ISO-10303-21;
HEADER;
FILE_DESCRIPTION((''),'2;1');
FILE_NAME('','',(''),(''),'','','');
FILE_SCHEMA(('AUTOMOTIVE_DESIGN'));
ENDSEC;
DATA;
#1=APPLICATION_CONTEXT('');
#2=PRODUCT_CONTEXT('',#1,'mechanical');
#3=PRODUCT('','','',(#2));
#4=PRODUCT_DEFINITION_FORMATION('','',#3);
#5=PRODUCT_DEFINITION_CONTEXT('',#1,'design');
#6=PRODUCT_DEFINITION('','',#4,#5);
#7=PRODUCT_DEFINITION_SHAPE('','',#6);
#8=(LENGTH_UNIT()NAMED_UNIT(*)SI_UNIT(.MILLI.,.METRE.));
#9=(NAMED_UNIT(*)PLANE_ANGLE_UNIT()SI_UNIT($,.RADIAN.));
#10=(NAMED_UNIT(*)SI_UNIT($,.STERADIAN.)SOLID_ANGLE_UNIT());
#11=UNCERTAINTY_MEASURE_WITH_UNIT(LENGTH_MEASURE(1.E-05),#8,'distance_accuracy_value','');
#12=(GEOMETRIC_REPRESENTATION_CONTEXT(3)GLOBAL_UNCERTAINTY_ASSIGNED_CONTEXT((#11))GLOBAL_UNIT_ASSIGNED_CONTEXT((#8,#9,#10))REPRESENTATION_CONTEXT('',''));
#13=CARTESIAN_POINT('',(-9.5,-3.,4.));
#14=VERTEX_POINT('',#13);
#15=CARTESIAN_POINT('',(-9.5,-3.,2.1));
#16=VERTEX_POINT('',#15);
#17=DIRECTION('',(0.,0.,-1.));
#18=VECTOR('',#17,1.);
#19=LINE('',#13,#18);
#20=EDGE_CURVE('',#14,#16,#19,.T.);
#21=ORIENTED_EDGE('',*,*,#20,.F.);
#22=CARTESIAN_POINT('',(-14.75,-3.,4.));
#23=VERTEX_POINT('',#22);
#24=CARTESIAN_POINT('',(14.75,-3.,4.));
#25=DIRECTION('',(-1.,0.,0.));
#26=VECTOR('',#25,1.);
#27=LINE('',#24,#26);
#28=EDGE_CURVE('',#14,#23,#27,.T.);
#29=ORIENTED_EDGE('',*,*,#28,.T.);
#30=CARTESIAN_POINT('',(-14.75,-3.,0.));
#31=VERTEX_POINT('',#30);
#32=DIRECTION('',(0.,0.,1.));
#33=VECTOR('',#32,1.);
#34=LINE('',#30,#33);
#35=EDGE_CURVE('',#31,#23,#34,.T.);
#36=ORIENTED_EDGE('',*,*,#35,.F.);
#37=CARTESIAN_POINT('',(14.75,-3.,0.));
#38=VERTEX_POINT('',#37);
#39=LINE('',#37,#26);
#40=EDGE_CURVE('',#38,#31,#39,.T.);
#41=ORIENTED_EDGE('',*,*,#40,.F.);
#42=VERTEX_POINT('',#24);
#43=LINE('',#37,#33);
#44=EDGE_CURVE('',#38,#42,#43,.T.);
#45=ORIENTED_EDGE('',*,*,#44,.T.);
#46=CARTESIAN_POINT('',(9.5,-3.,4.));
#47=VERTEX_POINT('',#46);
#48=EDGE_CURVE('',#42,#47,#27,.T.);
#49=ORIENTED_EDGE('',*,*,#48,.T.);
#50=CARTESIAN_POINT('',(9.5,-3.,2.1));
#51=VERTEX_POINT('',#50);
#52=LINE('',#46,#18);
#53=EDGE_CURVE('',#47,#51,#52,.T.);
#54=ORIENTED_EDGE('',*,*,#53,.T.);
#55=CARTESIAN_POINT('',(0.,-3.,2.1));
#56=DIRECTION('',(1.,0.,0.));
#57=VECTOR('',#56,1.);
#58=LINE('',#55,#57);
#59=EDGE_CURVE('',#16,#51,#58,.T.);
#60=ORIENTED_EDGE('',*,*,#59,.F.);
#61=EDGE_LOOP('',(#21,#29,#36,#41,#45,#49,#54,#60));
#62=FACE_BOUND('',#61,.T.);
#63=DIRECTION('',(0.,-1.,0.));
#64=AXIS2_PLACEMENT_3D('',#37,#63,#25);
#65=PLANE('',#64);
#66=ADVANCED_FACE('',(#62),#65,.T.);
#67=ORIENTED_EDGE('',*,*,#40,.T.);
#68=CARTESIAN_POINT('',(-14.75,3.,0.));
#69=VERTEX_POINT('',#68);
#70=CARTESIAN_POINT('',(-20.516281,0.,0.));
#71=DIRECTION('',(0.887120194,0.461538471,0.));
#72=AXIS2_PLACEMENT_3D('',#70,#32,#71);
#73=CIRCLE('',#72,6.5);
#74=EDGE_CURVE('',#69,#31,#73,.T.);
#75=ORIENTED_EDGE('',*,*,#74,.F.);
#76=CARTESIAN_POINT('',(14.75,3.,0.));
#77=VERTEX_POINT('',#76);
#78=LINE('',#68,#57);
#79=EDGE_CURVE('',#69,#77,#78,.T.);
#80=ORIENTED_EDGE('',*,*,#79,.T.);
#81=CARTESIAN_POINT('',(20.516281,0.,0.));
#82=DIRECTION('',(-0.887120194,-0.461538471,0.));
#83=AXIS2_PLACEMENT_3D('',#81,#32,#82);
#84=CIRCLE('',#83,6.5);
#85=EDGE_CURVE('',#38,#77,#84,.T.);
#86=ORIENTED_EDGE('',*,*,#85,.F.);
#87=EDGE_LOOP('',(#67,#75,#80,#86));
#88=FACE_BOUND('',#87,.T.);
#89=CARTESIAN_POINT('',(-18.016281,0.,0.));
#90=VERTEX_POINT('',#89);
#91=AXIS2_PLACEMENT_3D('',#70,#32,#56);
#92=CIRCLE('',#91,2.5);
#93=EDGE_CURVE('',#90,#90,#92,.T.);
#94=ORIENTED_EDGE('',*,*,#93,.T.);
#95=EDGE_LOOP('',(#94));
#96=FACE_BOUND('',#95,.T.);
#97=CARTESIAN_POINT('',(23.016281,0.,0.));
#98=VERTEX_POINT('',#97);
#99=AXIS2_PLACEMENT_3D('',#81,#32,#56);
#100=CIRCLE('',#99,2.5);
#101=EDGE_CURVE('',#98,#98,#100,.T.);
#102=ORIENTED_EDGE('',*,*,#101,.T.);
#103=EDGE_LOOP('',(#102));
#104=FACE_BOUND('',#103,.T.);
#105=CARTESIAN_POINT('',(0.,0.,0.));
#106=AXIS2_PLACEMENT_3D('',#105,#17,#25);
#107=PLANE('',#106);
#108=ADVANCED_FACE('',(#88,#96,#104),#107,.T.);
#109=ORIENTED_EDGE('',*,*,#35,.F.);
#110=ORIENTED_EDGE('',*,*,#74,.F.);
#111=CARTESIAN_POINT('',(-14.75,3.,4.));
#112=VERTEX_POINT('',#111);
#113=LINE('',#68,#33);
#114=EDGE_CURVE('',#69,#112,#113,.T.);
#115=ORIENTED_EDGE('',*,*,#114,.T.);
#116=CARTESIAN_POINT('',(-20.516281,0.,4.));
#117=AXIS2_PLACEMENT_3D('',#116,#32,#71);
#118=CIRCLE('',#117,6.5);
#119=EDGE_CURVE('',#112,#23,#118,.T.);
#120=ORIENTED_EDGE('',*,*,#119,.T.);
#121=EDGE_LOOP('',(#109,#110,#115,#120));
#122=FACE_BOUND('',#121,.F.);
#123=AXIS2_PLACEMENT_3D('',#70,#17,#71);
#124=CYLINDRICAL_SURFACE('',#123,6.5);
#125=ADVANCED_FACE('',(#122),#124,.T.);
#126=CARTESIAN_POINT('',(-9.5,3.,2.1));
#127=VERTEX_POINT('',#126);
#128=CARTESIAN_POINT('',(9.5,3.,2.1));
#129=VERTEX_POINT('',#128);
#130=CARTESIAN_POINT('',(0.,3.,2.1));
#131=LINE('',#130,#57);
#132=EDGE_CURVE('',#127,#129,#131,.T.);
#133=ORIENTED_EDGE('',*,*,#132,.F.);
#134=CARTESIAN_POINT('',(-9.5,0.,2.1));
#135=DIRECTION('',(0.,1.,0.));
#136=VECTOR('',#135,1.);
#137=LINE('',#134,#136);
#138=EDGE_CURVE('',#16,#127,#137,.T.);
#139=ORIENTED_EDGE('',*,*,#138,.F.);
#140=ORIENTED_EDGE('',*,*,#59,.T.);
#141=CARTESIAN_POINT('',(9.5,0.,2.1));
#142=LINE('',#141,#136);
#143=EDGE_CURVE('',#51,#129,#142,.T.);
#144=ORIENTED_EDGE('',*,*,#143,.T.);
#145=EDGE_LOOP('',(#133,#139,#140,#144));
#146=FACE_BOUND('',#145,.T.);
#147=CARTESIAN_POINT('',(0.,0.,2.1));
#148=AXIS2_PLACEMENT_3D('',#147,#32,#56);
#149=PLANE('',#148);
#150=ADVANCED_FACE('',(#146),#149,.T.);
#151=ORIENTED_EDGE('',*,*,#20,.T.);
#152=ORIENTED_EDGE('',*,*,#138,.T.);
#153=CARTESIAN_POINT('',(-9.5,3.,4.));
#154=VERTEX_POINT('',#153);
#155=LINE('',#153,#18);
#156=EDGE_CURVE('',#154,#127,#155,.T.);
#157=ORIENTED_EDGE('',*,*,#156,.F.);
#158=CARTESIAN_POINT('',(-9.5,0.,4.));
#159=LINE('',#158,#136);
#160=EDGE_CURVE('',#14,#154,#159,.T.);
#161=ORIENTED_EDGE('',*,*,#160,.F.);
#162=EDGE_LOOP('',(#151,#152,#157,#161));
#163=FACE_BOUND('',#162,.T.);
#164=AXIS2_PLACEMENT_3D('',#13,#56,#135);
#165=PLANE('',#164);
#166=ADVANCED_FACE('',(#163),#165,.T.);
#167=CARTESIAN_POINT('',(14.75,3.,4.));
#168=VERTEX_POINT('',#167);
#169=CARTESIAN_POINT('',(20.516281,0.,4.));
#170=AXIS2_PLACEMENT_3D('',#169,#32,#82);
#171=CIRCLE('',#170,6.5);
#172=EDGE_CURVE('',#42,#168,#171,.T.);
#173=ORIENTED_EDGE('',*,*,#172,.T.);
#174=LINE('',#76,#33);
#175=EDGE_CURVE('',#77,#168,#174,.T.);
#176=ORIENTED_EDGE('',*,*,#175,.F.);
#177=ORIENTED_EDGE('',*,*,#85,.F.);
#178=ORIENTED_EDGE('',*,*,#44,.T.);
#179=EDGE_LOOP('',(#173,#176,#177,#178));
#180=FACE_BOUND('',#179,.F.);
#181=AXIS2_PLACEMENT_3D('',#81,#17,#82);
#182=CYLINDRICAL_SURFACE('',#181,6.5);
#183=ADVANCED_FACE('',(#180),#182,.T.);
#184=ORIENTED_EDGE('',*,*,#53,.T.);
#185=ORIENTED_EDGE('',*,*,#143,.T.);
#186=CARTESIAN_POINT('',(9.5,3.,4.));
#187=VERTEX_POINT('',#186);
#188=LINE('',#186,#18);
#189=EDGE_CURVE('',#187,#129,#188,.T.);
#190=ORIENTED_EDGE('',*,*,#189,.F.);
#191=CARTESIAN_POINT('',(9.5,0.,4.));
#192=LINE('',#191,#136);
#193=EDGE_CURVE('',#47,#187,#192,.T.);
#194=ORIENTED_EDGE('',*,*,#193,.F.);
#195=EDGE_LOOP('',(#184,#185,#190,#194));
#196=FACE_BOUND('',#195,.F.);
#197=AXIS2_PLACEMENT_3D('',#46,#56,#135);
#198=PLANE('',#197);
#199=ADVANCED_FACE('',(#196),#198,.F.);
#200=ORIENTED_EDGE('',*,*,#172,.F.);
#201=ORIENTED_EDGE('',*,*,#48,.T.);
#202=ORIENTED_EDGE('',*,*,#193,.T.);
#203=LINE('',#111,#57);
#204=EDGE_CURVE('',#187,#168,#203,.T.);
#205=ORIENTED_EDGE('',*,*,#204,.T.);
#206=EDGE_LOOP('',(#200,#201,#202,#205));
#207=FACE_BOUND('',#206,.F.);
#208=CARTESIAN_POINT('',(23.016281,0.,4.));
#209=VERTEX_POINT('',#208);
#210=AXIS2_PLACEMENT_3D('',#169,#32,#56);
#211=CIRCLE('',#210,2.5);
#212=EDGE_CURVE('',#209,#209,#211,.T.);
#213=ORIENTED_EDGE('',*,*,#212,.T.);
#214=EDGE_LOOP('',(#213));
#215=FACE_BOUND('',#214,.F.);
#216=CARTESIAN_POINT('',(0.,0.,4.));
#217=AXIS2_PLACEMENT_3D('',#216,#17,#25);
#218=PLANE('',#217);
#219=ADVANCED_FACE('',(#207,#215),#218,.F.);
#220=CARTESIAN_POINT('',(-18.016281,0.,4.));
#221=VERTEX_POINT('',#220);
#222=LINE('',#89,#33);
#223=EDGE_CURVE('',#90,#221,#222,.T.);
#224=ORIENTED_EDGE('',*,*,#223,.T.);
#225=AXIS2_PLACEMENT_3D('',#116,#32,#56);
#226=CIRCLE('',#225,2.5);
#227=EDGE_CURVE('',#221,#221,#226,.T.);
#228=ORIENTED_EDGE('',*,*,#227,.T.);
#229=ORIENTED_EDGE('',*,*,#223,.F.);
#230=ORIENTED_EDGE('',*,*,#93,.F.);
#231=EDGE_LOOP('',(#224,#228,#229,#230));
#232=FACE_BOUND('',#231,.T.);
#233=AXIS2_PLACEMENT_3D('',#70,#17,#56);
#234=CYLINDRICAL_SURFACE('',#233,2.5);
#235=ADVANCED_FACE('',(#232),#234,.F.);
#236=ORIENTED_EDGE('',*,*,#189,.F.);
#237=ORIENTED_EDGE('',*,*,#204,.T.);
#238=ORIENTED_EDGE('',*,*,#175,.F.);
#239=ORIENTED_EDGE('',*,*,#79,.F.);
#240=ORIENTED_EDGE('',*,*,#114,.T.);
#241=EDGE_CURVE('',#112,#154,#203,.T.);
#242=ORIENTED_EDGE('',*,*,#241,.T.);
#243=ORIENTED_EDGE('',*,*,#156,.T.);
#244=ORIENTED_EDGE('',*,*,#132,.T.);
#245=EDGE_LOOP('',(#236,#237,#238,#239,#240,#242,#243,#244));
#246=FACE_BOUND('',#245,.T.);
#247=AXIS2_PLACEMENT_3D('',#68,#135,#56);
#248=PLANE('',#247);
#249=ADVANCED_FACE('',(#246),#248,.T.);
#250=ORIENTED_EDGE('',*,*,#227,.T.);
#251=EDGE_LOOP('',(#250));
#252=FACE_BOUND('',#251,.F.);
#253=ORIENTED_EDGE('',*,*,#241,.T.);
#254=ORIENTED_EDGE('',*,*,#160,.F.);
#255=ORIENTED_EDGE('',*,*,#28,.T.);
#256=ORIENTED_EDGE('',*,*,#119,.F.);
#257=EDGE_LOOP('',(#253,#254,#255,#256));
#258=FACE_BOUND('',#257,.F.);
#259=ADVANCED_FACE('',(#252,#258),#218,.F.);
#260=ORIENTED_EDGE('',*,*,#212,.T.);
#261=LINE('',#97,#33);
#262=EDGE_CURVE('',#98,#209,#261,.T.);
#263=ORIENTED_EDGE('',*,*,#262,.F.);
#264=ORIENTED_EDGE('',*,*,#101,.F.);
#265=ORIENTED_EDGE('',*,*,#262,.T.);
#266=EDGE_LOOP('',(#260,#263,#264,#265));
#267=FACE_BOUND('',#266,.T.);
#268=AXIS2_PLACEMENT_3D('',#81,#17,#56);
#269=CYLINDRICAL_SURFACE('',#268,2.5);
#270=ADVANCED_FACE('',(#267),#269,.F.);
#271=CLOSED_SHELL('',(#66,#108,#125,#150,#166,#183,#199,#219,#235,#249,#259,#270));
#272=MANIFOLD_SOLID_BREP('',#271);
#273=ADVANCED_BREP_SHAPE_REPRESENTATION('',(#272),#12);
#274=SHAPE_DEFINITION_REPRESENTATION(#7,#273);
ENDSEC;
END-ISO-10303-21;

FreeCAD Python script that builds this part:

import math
import FreeCAD as App
import Part
import Sketcher

V = App.Vector


def add_polygon(sketch, points):
    """Adds a closed chain of lines whose ends are joined by coincident constraints."""
    first, n = sketch.GeometryCount, len(points)
    for a, b in zip(points, points[1:] + points[:1]):
        sketch.addGeometry(Part.LineSegment(App.Vector(*a, 0), App.Vector(*b, 0)), False)
    for i in range(n):
        sketch.addConstraint(Sketcher.Constraint("Coincident", first + i, 2, first + (i + 1) % n, 1))

doc = App.newDocument("Part")
body = doc.addObject("PartDesign::Body", "Body")

sketch1 = body.newObject("Sketcher::SketchObject", "Sketch")
sketch1.AttachmentSupport = (doc.getObject("XY_Plane"), [""])
sketch1.MapMode = "FlatFace"
sketch1.addGeometry([
    Part.LineSegment(V(14.8, 3, 0), V(-14.8, 3, 0)),
    Part.ArcOfCircle(Part.Circle(V(-20.5, 0, 0), V(0, 0, 1), 6.5), math.radians(27), math.radians(333)),
    Part.LineSegment(V(-14.8, -3, 0), V(14.8, -3, 0)),
    Part.ArcOfCircle(Part.Circle(V(20.5, 0, 0), V(0, 0, 1), 6.5), math.radians(-153), math.radians(153)),
    Part.Circle(V(20.5, 0, 0), V(0, 0, 1), 2.5),
    Part.Circle(V(-20.5, 0, 0), V(0, 0, 1), 2.5),
], False)
sketch1.addConstraint([
    Sketcher.Constraint("Coincident", 0, 2, 1, 1),
    Sketcher.Constraint("Coincident", 1, 2, 2, 1),
    Sketcher.Constraint("Coincident", 2, 2, 3, 1),
    Sketcher.Constraint("Coincident", 3, 2, 0, 1),
    Sketcher.Constraint("Horizontal", 0),
    Sketcher.Constraint("Horizontal", 2),
    Sketcher.Constraint("Coincident", 4, 3, 3, 3),
    Sketcher.Constraint("Coincident", 5, 3, 1, 3),
    Sketcher.Constraint("Equal", 1, 3),
    Sketcher.Constraint("Equal", 4, 5),
    Sketcher.Constraint("Symmetric", 1, 3, 3, 3, -1, 1),
    Sketcher.Constraint("Symmetric", 0, 2, 1, 2, -1),
    Sketcher.Constraint("Diameter", 4, 5.0),
    Sketcher.Constraint("Radius", 1, 6.5),
    Sketcher.Constraint("DistanceX", 0, 2, 0, 1, 29.5),
    Sketcher.Constraint("DistanceY", -1, 1, 0, 2, 3.0),
])
pad1 = body.newObject("PartDesign::Pad", "Pad")
pad1.Profile = sketch1
pad1.Length = 4

sketch2 = body.newObject("Sketcher::SketchObject", "Sketch001")
sketch2.AttachmentSupport = (doc.getObject("XY_Plane"), [""])
sketch2.MapMode = "FlatFace"
sketch2.AttachmentOffset = App.Placement(V(0, 0, 4), App.Rotation())
add_polygon(sketch2, [(-10, 3), (-10, -3), (10, -3), (10, 3)])
sketch2.addConstraint([
    Sketcher.Constraint("Vertical", 0),
    Sketcher.Constraint("Horizontal", 1),
    Sketcher.Constraint("Vertical", 2),
    Sketcher.Constraint("Horizontal", 3),
    Sketcher.Constraint("Symmetric", 0, 2, 2, 2, -1, 1),
    Sketcher.Constraint("DistanceX", 1, 1, 1, 2, 19.0),
    Sketcher.Constraint("DistanceY", 0, 2, 0, 1, 6.0),
])
pocket1 = body.newObject("PartDesign::Pocket", "Pocket")
pocket1.Profile = sketch2
pocket1.Length = 1.9

doc.recompute()
